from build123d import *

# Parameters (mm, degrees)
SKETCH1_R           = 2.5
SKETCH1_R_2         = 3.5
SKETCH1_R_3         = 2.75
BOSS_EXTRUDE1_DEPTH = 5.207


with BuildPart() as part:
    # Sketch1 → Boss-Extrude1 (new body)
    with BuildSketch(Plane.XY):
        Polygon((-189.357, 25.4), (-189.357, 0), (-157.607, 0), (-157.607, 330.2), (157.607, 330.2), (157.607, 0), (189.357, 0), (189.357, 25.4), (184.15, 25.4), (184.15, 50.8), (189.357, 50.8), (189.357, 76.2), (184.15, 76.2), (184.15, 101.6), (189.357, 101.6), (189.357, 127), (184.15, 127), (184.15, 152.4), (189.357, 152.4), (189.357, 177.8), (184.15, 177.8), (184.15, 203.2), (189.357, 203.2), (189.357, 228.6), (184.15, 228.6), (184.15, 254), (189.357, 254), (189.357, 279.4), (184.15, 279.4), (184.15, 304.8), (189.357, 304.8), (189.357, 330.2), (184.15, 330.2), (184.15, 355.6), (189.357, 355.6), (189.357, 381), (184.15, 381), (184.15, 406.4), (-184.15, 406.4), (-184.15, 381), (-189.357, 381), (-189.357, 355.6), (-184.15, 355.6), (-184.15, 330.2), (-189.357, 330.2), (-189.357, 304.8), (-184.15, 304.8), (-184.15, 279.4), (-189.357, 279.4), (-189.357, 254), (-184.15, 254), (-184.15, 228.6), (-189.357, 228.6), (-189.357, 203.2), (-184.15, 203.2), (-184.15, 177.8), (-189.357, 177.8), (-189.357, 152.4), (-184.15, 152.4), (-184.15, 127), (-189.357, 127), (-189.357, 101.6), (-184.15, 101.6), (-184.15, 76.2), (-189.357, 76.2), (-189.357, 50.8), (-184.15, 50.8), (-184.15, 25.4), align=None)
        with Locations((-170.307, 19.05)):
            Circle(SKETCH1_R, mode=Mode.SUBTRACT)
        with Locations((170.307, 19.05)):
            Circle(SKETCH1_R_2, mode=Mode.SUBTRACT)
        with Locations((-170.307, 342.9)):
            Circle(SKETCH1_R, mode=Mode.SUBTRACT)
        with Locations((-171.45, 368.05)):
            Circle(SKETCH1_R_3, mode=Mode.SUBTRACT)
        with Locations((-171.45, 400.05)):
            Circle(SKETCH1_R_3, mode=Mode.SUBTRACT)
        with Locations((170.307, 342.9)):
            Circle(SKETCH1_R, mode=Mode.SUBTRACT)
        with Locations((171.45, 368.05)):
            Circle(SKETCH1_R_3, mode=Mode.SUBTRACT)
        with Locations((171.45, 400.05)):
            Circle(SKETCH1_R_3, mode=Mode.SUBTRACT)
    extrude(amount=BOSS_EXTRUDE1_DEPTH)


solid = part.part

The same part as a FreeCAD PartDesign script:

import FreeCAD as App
import Part
import Sketcher

V = App.Vector
Q = App.Units.Quantity

doc = App.newDocument("Part")
body = doc.addObject("PartDesign::Body", "Body")

# Sketch on XY plane
sketch1 = body.newObject("Sketcher::SketchObject", "Sketch")
sketch1.AttachmentSupport = (doc.getObject("XY_Plane"), [""])
sketch1.MapMode = "FlatFace"
sketch1.addGeometry(Part.LineSegment(V(-189.357, 25.4, 0), V(-189.357, 0, 0)), False)
sketch1.addGeometry(Part.LineSegment(V(-189.357, 0, 0), V(-157.607, 0, 0)), False)
sketch1.addGeometry(Part.LineSegment(V(-157.607, 0, 0), V(-157.607, 330.2, 0)), False)
sketch1.addGeometry(Part.LineSegment(V(-157.607, 330.2, 0), V(157.607, 330.2, 0)), False)
sketch1.addGeometry(Part.LineSegment(V(157.607, 330.2, 0), V(157.607, 0, 0)), False)
sketch1.addGeometry(Part.LineSegment(V(157.607, 0, 0), V(189.357, 0, 0)), False)
sketch1.addGeometry(Part.LineSegment(V(189.357, 0, 0), V(189.357, 25.4, 0)), False)
sketch1.addGeometry(Part.LineSegment(V(189.357, 25.4, 0), V(184.15, 25.4, 0)), False)
sketch1.addGeometry(Part.LineSegment(V(184.15, 25.4, 0), V(184.15, 50.8, 0)), False)
sketch1.addGeometry(Part.LineSegment(V(184.15, 50.8, 0), V(189.357, 50.8, 0)), False)
sketch1.addGeometry(Part.LineSegment(V(189.357, 50.8, 0), V(189.357, 76.2, 0)), False)
sketch1.addGeometry(Part.LineSegment(V(189.357, 76.2, 0), V(184.15, 76.2, 0)), False)
sketch1.addGeometry(Part.LineSegment(V(184.15, 76.2, 0), V(184.15, 101.6, 0)), False)
sketch1.addGeometry(Part.LineSegment(V(184.15, 101.6, 0), V(189.357, 101.6, 0)), False)
sketch1.addGeometry(Part.LineSegment(V(189.357, 101.6, 0), V(189.357, 127, 0)), False)
sketch1.addGeometry(Part.LineSegment(V(189.357, 127, 0), V(184.15, 127, 0)), False)
sketch1.addGeometry(Part.LineSegment(V(184.15, 127, 0), V(184.15, 152.4, 0)), False)
sketch1.addGeometry(Part.LineSegment(V(184.15, 152.4, 0), V(189.357, 152.4, 0)), False)
sketch1.addGeometry(Part.LineSegment(V(189.357, 152.4, 0), V(189.357, 177.8, 0)), False)
sketch1.addGeometry(Part.LineSegment(V(189.357, 177.8, 0), V(184.15, 177.8, 0)), False)
sketch1.addGeometry(Part.LineSegment(V(184.15, 177.8, 0), V(184.15, 203.2, 0)), False)
sketch1.addGeometry(Part.LineSegment(V(184.15, 203.2, 0), V(189.357, 203.2, 0)), False)
sketch1.addGeometry(Part.LineSegment(V(189.357, 203.2, 0), V(189.357, 228.6, 0)), False)
sketch1.addGeometry(Part.LineSegment(V(189.357, 228.6, 0), V(184.15, 228.6, 0)), False)
sketch1.addGeometry(Part.LineSegment(V(184.15, 228.6, 0), V(184.15, 254, 0)), False)
sketch1.addGeometry(Part.LineSegment(V(184.15, 254, 0), V(189.357, 254, 0)), False)
sketch1.addGeometry(Part.LineSegment(V(189.357, 254, 0), V(189.357, 279.4, 0)), False)
sketch1.addGeometry(Part.LineSegment(V(189.357, 279.4, 0), V(184.15, 279.4, 0)), False)
sketch1.addGeometry(Part.LineSegment(V(184.15, 279.4, 0), V(184.15, 304.8, 0)), False)
sketch1.addGeometry(Part.LineSegment(V(184.15, 304.8, 0), V(189.357, 304.8, 0)), False)
sketch1.addGeometry(Part.LineSegment(V(189.357, 304.8, 0), V(189.357, 330.2, 0)), False)
sketch1.addGeometry(Part.LineSegment(V(189.357, 330.2, 0), V(184.15, 330.2, 0)), False)
sketch1.addGeometry(Part.LineSegment(V(184.15, 330.2, 0), V(184.15, 355.6, 0)), False)
sketch1.addGeometry(Part.LineSegment(V(184.15, 355.6, 0), V(189.357, 355.6, 0)), False)
sketch1.addGeometry(Part.LineSegment(V(189.357, 355.6, 0), V(189.357, 381, 0)), False)
sketch1.addGeometry(Part.LineSegment(V(189.357, 381, 0), V(184.15, 381, 0)), False)
sketch1.addGeometry(Part.LineSegment(V(184.15, 381, 0), V(184.15, 406.4, 0)), False)
sketch1.addGeometry(Part.LineSegment(V(184.15, 406.4, 0), V(-184.15, 406.4, 0)), False)
sketch1.addGeometry(Part.LineSegment(V(-184.15, 406.4, 0), V(-184.15, 381, 0)), False)
sketch1.addGeometry(Part.LineSegment(V(-184.15, 381, 0), V(-189.357, 381, 0)), False)
sketch1.addGeometry(Part.LineSegment(V(-189.357, 381, 0), V(-189.357, 355.6, 0)), False)
sketch1.addGeometry(Part.LineSegment(V(-189.357, 355.6, 0), V(-184.15, 355.6, 0)), False)
sketch1.addGeometry(Part.LineSegment(V(-184.15, 355.6, 0), V(-184.15, 330.2, 0)), False)
sketch1.addGeometry(Part.LineSegment(V(-184.15, 330.2, 0), V(-189.357, 330.2, 0)), False)
sketch1.addGeometry(Part.LineSegment(V(-189.357, 330.2, 0), V(-189.357, 304.8, 0)), False)
sketch1.addGeometry(Part.LineSegment(V(-189.357, 304.8, 0), V(-184.15, 304.8, 0)), False)
sketch1.addGeometry(Part.LineSegment(V(-184.15, 304.8, 0), V(-184.15, 279.4, 0)), False)
sketch1.addGeometry(Part.LineSegment(V(-184.15, 279.4, 0), V(-189.357, 279.4, 0)), False)
sketch1.addGeometry(Part.LineSegment(V(-189.357, 279.4, 0), V(-189.357, 254, 0)), False)
sketch1.addGeometry(Part.LineSegment(V(-189.357, 254, 0), V(-184.15, 254, 0)), False)
sketch1.addGeometry(Part.LineSegment(V(-184.15, 254, 0), V(-184.15, 228.6, 0)), False)
sketch1.addGeometry(Part.LineSegment(V(-184.15, 228.6, 0), V(-189.357, 228.6, 0)), False)
sketch1.addGeometry(Part.LineSegment(V(-189.357, 228.6, 0), V(-189.357, 203.2, 0)), False)
sketch1.addGeometry(Part.LineSegment(V(-189.357, 203.2, 0), V(-184.15, 203.2, 0)), False)
sketch1.addGeometry(Part.LineSegment(V(-184.15, 203.2, 0), V(-184.15, 177.8, 0)), False)
sketch1.addGeometry(Part.LineSegment(V(-184.15, 177.8, 0), V(-189.357, 177.8, 0)), False)
sketch1.addGeometry(Part.LineSegment(V(-189.357, 177.8, 0), V(-189.357, 152.4, 0)), False)
sketch1.addGeometry(Part.LineSegment(V(-189.357, 152.4, 0), V(-184.15, 152.4, 0)), False)
sketch1.addGeometry(Part.LineSegment(V(-184.15, 152.4, 0), V(-184.15, 127, 0)), False)
sketch1.addGeometry(Part.LineSegment(V(-184.15, 127, 0), V(-189.357, 127, 0)), False)
sketch1.addGeometry(Part.LineSegment(V(-189.357, 127, 0), V(-189.357, 101.6, 0)), False)
sketch1.addGeometry(Part.LineSegment(V(-189.357, 101.6, 0), V(-184.15, 101.6, 0)), False)
sketch1.addGeometry(Part.LineSegment(V(-184.15, 101.6, 0), V(-184.15, 76.2, 0)), False)
sketch1.addGeometry(Part.LineSegment(V(-184.15, 76.2, 0), V(-189.357, 76.2, 0)), False)
sketch1.addGeometry(Part.LineSegment(V(-189.357, 76.2, 0), V(-189.357, 50.8, 0)), False)
sketch1.addGeometry(Part.LineSegment(V(-189.357, 50.8, 0), V(-184.15, 50.8, 0)), False)
sketch1.addGeometry(Part.LineSegment(V(-184.15, 50.8, 0), V(-184.15, 25.4, 0)), False)
sketch1.addGeometry(Part.LineSegment(V(-184.15, 25.4, 0), V(-189.357, 25.4, 0)), False)
sketch1.addGeometry(Part.Circle(V(-170.307, 19.05, 0), V(0, 0, 1), 2.5), False)
sketch1.addGeometry(Part.Circle(V(170.307, 19.05, 0), V(0, 0, 1), 3.5), False)
sketch1.addGeometry(Part.Circle(V(-170.307, 342.9, 0), V(0, 0, 1), 2.5), False)
sketch1.addGeometry(Part.Circle(V(-171.45, 368.05, 0), V(0, 0, 1), 2.75), False)
sketch1.addGeometry(Part.Circle(V(-171.45, 400.05, 0), V(0, 0, 1), 2.75), False)
sketch1.addGeometry(Part.Circle(V(170.307, 342.9, 0), V(0, 0, 1), 2.5), False)
sketch1.addGeometry(Part.Circle(V(171.45, 368.05, 0), V(0, 0, 1), 2.75), False)
sketch1.addGeometry(Part.Circle(V(171.45, 400.05, 0), V(0, 0, 1), 2.75), False)
sketch1.addConstraint(Sketcher.Constraint("Coincident", 0, 2, 1, 1))
sketch1.addConstraint(Sketcher.Constraint("Coincident", 1, 2, 2, 1))
sketch1.addConstraint(Sketcher.Constraint("Coincident", 2, 2, 3, 1))
sketch1.addConstraint(Sketcher.Constraint("Coincident", 3, 2, 4, 1))
sketch1.addConstraint(Sketcher.Constraint("Coincident", 4, 2, 5, 1))
sketch1.addConstraint(Sketcher.Constraint("Coincident", 5, 2, 6, 1))
sketch1.addConstraint(Sketcher.Constraint("Coincident", 6, 2, 7, 1))
sketch1.addConstraint(Sketcher.Constraint("Coincident", 7, 2, 8, 1))
sketch1.addConstraint(Sketcher.Constraint("Coincident", 8, 2, 9, 1))
sketch1.addConstraint(Sketcher.Constraint("Coincident", 9, 2, 10, 1))
sketch1.addConstraint(Sketcher.Constraint("Coincident", 10, 2, 11, 1))
sketch1.addConstraint(Sketcher.Constraint("Coincident", 11, 2, 12, 1))
sketch1.addConstraint(Sketcher.Constraint("Coincident", 12, 2, 13, 1))
sketch1.addConstraint(Sketcher.Constraint("Coincident", 13, 2, 14, 1))
sketch1.addConstraint(Sketcher.Constraint("Coincident", 14, 2, 15, 1))
sketch1.addConstraint(Sketcher.Constraint("Coincident", 15, 2, 16, 1))
sketch1.addConstraint(Sketcher.Constraint("Coincident", 16, 2, 17, 1))
sketch1.addConstraint(Sketcher.Constraint("Coincident", 17, 2, 18, 1))
sketch1.addConstraint(Sketcher.Constraint("Coincident", 18, 2, 19, 1))
sketch1.addConstraint(Sketcher.Constraint("Coincident", 19, 2, 20, 1))
sketch1.addConstraint(Sketcher.Constraint("Coincident", 20, 2, 21, 1))
sketch1.addConstraint(Sketcher.Constraint("Coincident", 21, 2, 22, 1))
sketch1.addConstraint(Sketcher.Constraint("Coincident", 22, 2, 23, 1))
sketch1.addConstraint(Sketcher.Constraint("Coincident", 23, 2, 24, 1))
sketch1.addConstraint(Sketcher.Constraint("Coincident", 24, 2, 25, 1))
sketch1.addConstraint(Sketcher.Constraint("Coincident", 25, 2, 26, 1))
sketch1.addConstraint(Sketcher.Constraint("Coincident", 26, 2, 27, 1))
sketch1.addConstraint(Sketcher.Constraint("Coincident", 27, 2, 28, 1))
sketch1.addConstraint(Sketcher.Constraint("Coincident", 28, 2, 29, 1))
sketch1.addConstraint(Sketcher.Constraint("Coincident", 29, 2, 30, 1))
sketch1.addConstraint(Sketcher.Constraint("Coincident", 30, 2, 31, 1))
sketch1.addConstraint(Sketcher.Constraint("Coincident", 31, 2, 32, 1))
sketch1.addConstraint(Sketcher.Constraint("Coincident", 32, 2, 33, 1))
sketch1.addConstraint(Sketcher.Constraint("Coincident", 33, 2, 34, 1))
sketch1.addConstraint(Sketcher.Constraint("Coincident", 34, 2, 35, 1))
sketch1.addConstraint(Sketcher.Constraint("Coincident", 35, 2, 36, 1))
sketch1.addConstraint(Sketcher.Constraint("Coincident", 36, 2, 37, 1))
sketch1.addConstraint(Sketcher.Constraint("Coincident", 37, 2, 38, 1))
sketch1.addConstraint(Sketcher.Constraint("Coincident", 38, 2, 39, 1))
sketch1.addConstraint(Sketcher.Constraint("Coincident", 39, 2, 40, 1))
sketch1.addConstraint(Sketcher.Constraint("Coincident", 40, 2, 41, 1))
sketch1.addConstraint(Sketcher.Constraint("Coincident", 41, 2, 42, 1))
sketch1.addConstraint(Sketcher.Constraint("Coincident", 42, 2, 43, 1))
sketch1.addConstraint(Sketcher.Constraint("Coincident", 43, 2, 44, 1))
sketch1.addConstraint(Sketcher.Constraint("Coincident", 44, 2, 45, 1))
sketch1.addConstraint(Sketcher.Constraint("Coincident", 45, 2, 46, 1))
sketch1.addConstraint(Sketcher.Constraint("Coincident", 46, 2, 47, 1))
sketch1.addConstraint(Sketcher.Constraint("Coincident", 47, 2, 48, 1))
sketch1.addConstraint(Sketcher.Constraint("Coincident", 48, 2, 49, 1))
sketch1.addConstraint(Sketcher.Constraint("Coincident", 49, 2, 50, 1))
sketch1.addConstraint(Sketcher.Constraint("Coincident", 50, 2, 51, 1))
sketch1.addConstraint(Sketcher.Constraint("Coincident", 51, 2, 52, 1))
sketch1.addConstraint(Sketcher.Constraint("Coincident", 52, 2, 53, 1))
sketch1.addConstraint(Sketcher.Constraint("Coincident", 53, 2, 54, 1))
sketch1.addConstraint(Sketcher.Constraint("Coincident", 54, 2, 55, 1))
sketch1.addConstraint(Sketcher.Constraint("Coincident", 55, 2, 56, 1))
sketch1.addConstraint(Sketcher.Constraint("Coincident", 56, 2, 57, 1))
sketch1.addConstraint(Sketcher.Constraint("Coincident", 57, 2, 58, 1))
sketch1.addConstraint(Sketcher.Constraint("Coincident", 58, 2, 59, 1))
sketch1.addConstraint(Sketcher.Constraint("Coincident", 59, 2, 60, 1))
sketch1.addConstraint(Sketcher.Constraint("Coincident", 60, 2, 61, 1))
sketch1.addConstraint(Sketcher.Constraint("Coincident", 61, 2, 62, 1))
sketch1.addConstraint(Sketcher.Constraint("Coincident", 62, 2, 63, 1))
sketch1.addConstraint(Sketcher.Constraint("Coincident", 63, 2, 64, 1))
sketch1.addConstraint(Sketcher.Constraint("Coincident", 64, 2, 65, 1))
sketch1.addConstraint(Sketcher.Constraint("Coincident", 65, 2, 66, 1))
sketch1.addConstraint(Sketcher.Constraint("Coincident", 66, 2, 67, 1))
sketch1.addConstraint(Sketcher.Constraint("Coincident", 67, 2, 0, 1))
sketch1.addConstraint(Sketcher.Constraint("Vertical", 0))
sketch1.addConstraint(Sketcher.Constraint("Horizontal", 1))
sketch1.addConstraint(Sketcher.Constraint("Vertical", 2))
sketch1.addConstraint(Sketcher.Constraint("Horizontal", 3))
sketch1.addConstraint(Sketcher.Constraint("Vertical", 4))
sketch1.addConstraint(Sketcher.Constraint("Horizontal", 5))
sketch1.addConstraint(Sketcher.Constraint("Vertical", 6))
sketch1.addConstraint(Sketcher.Constraint("Horizontal", 7))
sketch1.addConstraint(Sketcher.Constraint("Vertical", 8))
sketch1.addConstraint(Sketcher.Constraint("Horizontal", 9))
sketch1.addConstraint(Sketcher.Constraint("Vertical", 10))
sketch1.addConstraint(Sketcher.Constraint("Horizontal", 11))
sketch1.addConstraint(Sketcher.Constraint("Vertical", 12))
sketch1.addConstraint(Sketcher.Constraint("Horizontal", 13))
sketch1.addConstraint(Sketcher.Constraint("Vertical", 14))
sketch1.addConstraint(Sketcher.Constraint("Horizontal", 15))
sketch1.addConstraint(Sketcher.Constraint("Vertical", 16))
sketch1.addConstraint(Sketcher.Constraint("Horizontal", 17))
sketch1.addConstraint(Sketcher.Constraint("Vertical", 18))
sketch1.addConstraint(Sketcher.Constraint("Horizontal", 19))
sketch1.addConstraint(Sketcher.Constraint("Vertical", 20))
sketch1.addConstraint(Sketcher.Constraint("Horizontal", 21))
sketch1.addConstraint(Sketcher.Constraint("Vertical", 22))
sketch1.addConstraint(Sketcher.Constraint("Horizontal", 23))
sketch1.addConstraint(Sketcher.Constraint("Vertical", 24))
sketch1.addConstraint(Sketcher.Constraint("Horizontal", 25))
sketch1.addConstraint(Sketcher.Constraint("Vertical", 26))
sketch1.addConstraint(Sketcher.Constraint("Horizontal", 27))
sketch1.addConstraint(Sketcher.Constraint("Vertical", 28))
sketch1.addConstraint(Sketcher.Constraint("Horizontal", 29))
sketch1.addConstraint(Sketcher.Constraint("Vertical", 30))
sketch1.addConstraint(Sketcher.Constraint("Horizontal", 31))
sketch1.addConstraint(Sketcher.Constraint("Vertical", 32))
sketch1.addConstraint(Sketcher.Constraint("Horizontal", 33))
sketch1.addConstraint(Sketcher.Constraint("Vertical", 34))
sketch1.addConstraint(Sketcher.Constraint("Horizontal", 35))
sketch1.addConstraint(Sketcher.Constraint("Vertical", 36))
sketch1.addConstraint(Sketcher.Constraint("Horizontal", 37))
sketch1.addConstraint(Sketcher.Constraint("Vertical", 38))
sketch1.addConstraint(Sketcher.Constraint("Horizontal", 39))
sketch1.addConstraint(Sketcher.Constraint("Vertical", 40))
sketch1.addConstraint(Sketcher.Constraint("Horizontal", 41))
sketch1.addConstraint(Sketcher.Constraint("Vertical", 42))
sketch1.addConstraint(Sketcher.Constraint("Horizontal", 43))
sketch1.addConstraint(Sketcher.Constraint("Vertical", 44))
sketch1.addConstraint(Sketcher.Constraint("Horizontal", 45))
sketch1.addConstraint(Sketcher.Constraint("Vertical", 46))
sketch1.addConstraint(Sketcher.Constraint("Horizontal", 47))
sketch1.addConstraint(Sketcher.Constraint("Vertical", 48))
sketch1.addConstraint(Sketcher.Constraint("Horizontal", 49))
sketch1.addConstraint(Sketcher.Constraint("Vertical", 50))
sketch1.addConstraint(Sketcher.Constraint("Horizontal", 51))
sketch1.addConstraint(Sketcher.Constraint("Vertical", 52))
sketch1.addConstraint(Sketcher.Constraint("Horizontal", 53))
sketch1.addConstraint(Sketcher.Constraint("Vertical", 54))
sketch1.addConstraint(Sketcher.Constraint("Horizontal", 55))
sketch1.addConstraint(Sketcher.Constraint("Vertical", 56))
sketch1.addConstraint(Sketcher.Constraint("Horizontal", 57))
sketch1.addConstraint(Sketcher.Constraint("Vertical", 58))
sketch1.addConstraint(Sketcher.Constraint("Horizontal", 59))
sketch1.addConstraint(Sketcher.Constraint("Vertical", 60))
sketch1.addConstraint(Sketcher.Constraint("Horizontal", 61))
sketch1.addConstraint(Sketcher.Constraint("Vertical", 62))
sketch1.addConstraint(Sketcher.Constraint("Horizontal", 63))
sketch1.addConstraint(Sketcher.Constraint("Vertical", 64))
sketch1.addConstraint(Sketcher.Constraint("Horizontal", 65))
sketch1.addConstraint(Sketcher.Constraint("Vertical", 66))
sketch1.addConstraint(Sketcher.Constraint("Horizontal", 67))
sketch1.addConstraint(Sketcher.Constraint("Equal", 68, 70))
sketch1.addConstraint(Sketcher.Constraint("Equal", 71, 72))
sketch1.addConstraint(Sketcher.Constraint("Equal", 70, 73))
sketch1.addConstraint(Sketcher.Constraint("Equal", 72, 74))
sketch1.addConstraint(Sketcher.Constraint("Equal", 74, 75))
sketch1.addConstraint(Sketcher.Constraint("Symmetric", 1, 2, 4, 2, -1, 1))
sketch1.addConstraint(Sketcher.Constraint("Symmetric", 68, 3, 69, 3, -2))
sketch1.addConstraint(Sketcher.Constraint("Symmetric", 70, 3, 73, 3, -2))
sketch1.addConstraint(Sketcher.Constraint("Symmetric", 71, 3, 74, 3, -2))
sketch1.addConstraint(Sketcher.Constraint("Symmetric", 72, 3, 75, 3, -2))
sketch1.addConstraint(Sketcher.Constraint("Symmetric", 0, 2, 5, 2, -2))
sketch1.addConstraint(Sketcher.Constraint("Symmetric", 35, 2, 38, 2, -2))
sketch1.addConstraint(Sketcher.Constraint("Symmetric", 33, 2, 40, 2, -2))
sketch1.addConstraint(Sketcher.Constraint("Symmetric", 31, 2, 42, 2, -2))
sketch1.addConstraint(Sketcher.Constraint("Symmetric", 29, 2, 44, 2, -2))
sketch1.addConstraint(Sketcher.Constraint("Symmetric", 27, 2, 46, 2, -2))
sketch1.addConstraint(Sketcher.Constraint("Symmetric", 25, 2, 48, 2, -2))
sketch1.addConstraint(Sketcher.Constraint("Symmetric", 23, 2, 50, 2, -2))
sketch1.addConstraint(Sketcher.Constraint("Symmetric", 21, 2, 52, 2, -2))
sketch1.addConstraint(Sketcher.Constraint("Symmetric", 19, 2, 54, 2, -2))
sketch1.addConstraint(Sketcher.Constraint("Symmetric", 17, 2, 56, 2, -2))
sketch1.addConstraint(Sketcher.Constraint("Symmetric", 15, 2, 58, 2, -2))
sketch1.addConstraint(Sketcher.Constraint("Symmetric", 13, 2, 60, 2, -2))
sketch1.addConstraint(Sketcher.Constraint("Symmetric", 11, 2, 62, 2, -2))
sketch1.addConstraint(Sketcher.Constraint("Symmetric", 9, 2, 64, 2, -2))
sketch1.addConstraint(Sketcher.Constraint("Symmetric", 7, 2, 66, 2, -2))
sketch1.addConstraint(Sketcher.Constraint("Horizontal", 3, 2, 30, 2))
sketch1.addConstraint(Sketcher.Constraint("Vertical", 68, 3, 70, 3))
sketch1.addConstraint(Sketcher.Constraint("Vertical", 71, 3, 72, 3))
sketch1.addConstraint(Sketcher.Constraint("Vertical", 6, 2, 9, 2))
sketch1.addConstraint(Sketcher.Constraint("Vertical", 8, 2, 11, 2))
sketch1.addConstraint(Sketcher.Constraint("Vertical", 10, 2, 13, 2))
sketch1.addConstraint(Sketcher.Constraint("Vertical", 12, 2, 15, 2))
sketch1.addConstraint(Sketcher.Constraint("Vertical", 14, 2, 17, 2))
sketch1.addConstraint(Sketcher.Constraint("Vertical", 16, 2, 19, 2))
sketch1.addConstraint(Sketcher.Constraint("Vertical", 18, 2, 21, 2))
sketch1.addConstraint(Sketcher.Constraint("Vertical", 20, 2, 23, 2))
sketch1.addConstraint(Sketcher.Constraint("Vertical", 22, 2, 25, 2))
sketch1.addConstraint(Sketcher.Constraint("Vertical", 24, 2, 27, 2))
sketch1.addConstraint(Sketcher.Constraint("Vertical", 26, 2, 29, 2))
sketch1.addConstraint(Sketcher.Constraint("Vertical", 28, 2, 31, 2))
sketch1.addConstraint(Sketcher.Constraint("Vertical", 30, 2, 33, 2))
sketch1.addConstraint(Sketcher.Constraint("Vertical", 32, 2, 35, 2))
sketch1.addConstraint(Sketcher.Constraint("Equal", 6, 8))
sketch1.addConstraint(Sketcher.Constraint("Equal", 8, 10))
sketch1.addConstraint(Sketcher.Constraint("Equal", 10, 12))
sketch1.addConstraint(Sketcher.Constraint("Equal", 12, 14))
sketch1.addConstraint(Sketcher.Constraint("Equal", 14, 16))
sketch1.addConstraint(Sketcher.Constraint("Equal", 16, 18))
sketch1.addConstraint(Sketcher.Constraint("Equal", 18, 20))
sketch1.addConstraint(Sketcher.Constraint("Equal", 20, 22))
sketch1.addConstraint(Sketcher.Constraint("Equal", 22, 24))
sketch1.addConstraint(Sketcher.Constraint("Equal", 24, 26))
sketch1.addConstraint(Sketcher.Constraint("Equal", 26, 28))
sketch1.addConstraint(Sketcher.Constraint("Equal", 28, 30))
sketch1.addConstraint(Sketcher.Constraint("Equal", 30, 32))
sketch1.addConstraint(Sketcher.Constraint("Equal", 32, 34))
sketch1.addConstraint(Sketcher.Constraint("Equal", 34, 36))
sketch1.addConstraint(Sketcher.Constraint("DistanceY", 0, 2, 0, 1, Q("1 in")))
sketch1.addConstraint(Sketcher.Constraint("DistanceX", 37, 2, 37, 1, Q("14.5 in")))
sketch1.addConstraint(Sketcher.Constraint("DistanceX", 1, 1, 1, 2, Q("1.25 in")))
sketch1.addConstraint(Sketcher.Constraint("DistanceX", 3, 1, 3, 2, Q("12.41 in")))
sketch1.addConstraint(Sketcher.Constraint("DistanceY", -1, 1, 70, 3, Q("13.5 in")))
sketch1.addConstraint(Sketcher.Constraint("Diameter", 68, 5.0))
sketch1.addConstraint(Sketcher.Constraint("Diameter", 69, 7.0))
sketch1.addConstraint(Sketcher.Constraint("Diameter", 71, 5.5))
sketch1.addConstraint(Sketcher.Constraint("DistanceY", -1, 1, 68, 3, Q("0.75 in")))
sketch1.addConstraint(Sketcher.Constraint("DistanceX", 71, 3, -1, 1, Q("6.75 in")))
sketch1.addConstraint(Sketcher.Constraint("DistanceY", -1, 1, 72, 3, Q("15.75 in")))
sketch1.addConstraint(Sketcher.Constraint("DistanceX", 68, 3, -1, 1, Q("6.705 in")))
sketch1.addConstraint(Sketcher.Constraint("DistanceY", -1, 1, 71, 3, 368.05))
pad1 = body.newObject("PartDesign::Pad", "Pad")
pad1.Profile = sketch1
pad1.Length = Q("0.205 in")

doc.recompute()
